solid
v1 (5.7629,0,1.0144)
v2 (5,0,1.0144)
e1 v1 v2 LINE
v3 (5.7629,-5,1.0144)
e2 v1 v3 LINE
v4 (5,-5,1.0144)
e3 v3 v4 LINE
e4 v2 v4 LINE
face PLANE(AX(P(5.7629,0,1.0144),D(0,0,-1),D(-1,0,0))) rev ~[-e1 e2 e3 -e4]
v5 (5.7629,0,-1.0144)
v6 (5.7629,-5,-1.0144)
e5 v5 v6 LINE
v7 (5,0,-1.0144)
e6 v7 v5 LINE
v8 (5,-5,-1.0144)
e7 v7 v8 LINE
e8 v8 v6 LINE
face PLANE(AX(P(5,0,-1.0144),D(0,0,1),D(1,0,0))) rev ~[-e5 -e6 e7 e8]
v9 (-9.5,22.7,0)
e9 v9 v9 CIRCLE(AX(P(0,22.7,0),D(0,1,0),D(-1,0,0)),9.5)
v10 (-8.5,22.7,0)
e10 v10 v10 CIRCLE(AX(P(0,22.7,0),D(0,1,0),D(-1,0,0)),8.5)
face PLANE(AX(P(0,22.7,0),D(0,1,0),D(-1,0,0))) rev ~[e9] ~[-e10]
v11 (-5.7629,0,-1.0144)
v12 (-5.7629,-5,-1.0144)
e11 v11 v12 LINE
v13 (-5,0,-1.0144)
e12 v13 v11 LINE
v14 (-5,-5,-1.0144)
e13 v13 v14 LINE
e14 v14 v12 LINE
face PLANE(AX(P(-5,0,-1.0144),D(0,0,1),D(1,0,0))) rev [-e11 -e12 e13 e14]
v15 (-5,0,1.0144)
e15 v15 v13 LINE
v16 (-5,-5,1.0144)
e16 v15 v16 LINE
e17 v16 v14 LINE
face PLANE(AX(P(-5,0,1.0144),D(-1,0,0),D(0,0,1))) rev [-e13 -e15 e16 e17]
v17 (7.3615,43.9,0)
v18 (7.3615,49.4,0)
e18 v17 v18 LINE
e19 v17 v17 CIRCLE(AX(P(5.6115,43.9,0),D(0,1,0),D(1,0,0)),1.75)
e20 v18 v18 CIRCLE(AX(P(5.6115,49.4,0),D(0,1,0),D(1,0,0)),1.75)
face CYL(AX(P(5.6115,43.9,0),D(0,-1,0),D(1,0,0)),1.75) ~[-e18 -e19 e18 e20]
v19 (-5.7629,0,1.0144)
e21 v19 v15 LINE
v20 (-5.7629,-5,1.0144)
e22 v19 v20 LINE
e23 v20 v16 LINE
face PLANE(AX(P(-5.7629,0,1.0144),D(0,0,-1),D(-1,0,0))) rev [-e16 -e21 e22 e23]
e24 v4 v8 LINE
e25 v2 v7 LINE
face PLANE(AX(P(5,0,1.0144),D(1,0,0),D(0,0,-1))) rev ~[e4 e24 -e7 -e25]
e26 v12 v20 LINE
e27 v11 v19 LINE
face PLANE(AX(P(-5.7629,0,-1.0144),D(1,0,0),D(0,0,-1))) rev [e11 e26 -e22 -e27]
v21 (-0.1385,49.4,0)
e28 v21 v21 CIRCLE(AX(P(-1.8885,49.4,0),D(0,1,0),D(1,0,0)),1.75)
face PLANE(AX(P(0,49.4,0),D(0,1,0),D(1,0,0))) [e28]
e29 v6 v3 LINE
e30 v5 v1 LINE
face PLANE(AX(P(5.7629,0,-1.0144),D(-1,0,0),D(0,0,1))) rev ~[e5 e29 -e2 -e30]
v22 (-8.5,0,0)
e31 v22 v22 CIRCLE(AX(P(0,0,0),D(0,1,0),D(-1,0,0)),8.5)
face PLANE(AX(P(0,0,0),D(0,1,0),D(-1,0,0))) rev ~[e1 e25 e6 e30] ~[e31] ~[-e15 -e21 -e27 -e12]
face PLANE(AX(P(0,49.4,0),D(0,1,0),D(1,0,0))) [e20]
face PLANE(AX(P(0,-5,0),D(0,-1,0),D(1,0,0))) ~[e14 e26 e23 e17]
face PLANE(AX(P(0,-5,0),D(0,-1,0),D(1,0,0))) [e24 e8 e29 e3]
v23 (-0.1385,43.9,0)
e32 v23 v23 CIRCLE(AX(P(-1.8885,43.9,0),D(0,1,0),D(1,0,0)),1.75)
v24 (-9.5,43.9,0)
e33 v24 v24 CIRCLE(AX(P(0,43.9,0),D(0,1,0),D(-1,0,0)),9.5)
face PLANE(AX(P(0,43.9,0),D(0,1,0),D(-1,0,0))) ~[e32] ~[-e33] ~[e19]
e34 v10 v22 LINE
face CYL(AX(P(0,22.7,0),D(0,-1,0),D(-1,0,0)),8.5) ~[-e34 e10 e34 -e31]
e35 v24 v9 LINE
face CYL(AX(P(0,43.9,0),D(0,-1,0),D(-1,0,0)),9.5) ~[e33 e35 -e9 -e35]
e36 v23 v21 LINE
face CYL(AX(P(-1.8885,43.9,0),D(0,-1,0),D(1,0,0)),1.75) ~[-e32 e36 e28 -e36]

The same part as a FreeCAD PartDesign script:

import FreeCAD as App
import Part
import Sketcher


def add_polygon(sketch, points):
    """Adds a closed chain of lines whose ends are joined by coincident constraints."""
    first, n = sketch.GeometryCount, len(points)
    for a, b in zip(points, points[1:] + points[:1]):
        sketch.addGeometry(Part.LineSegment(App.Vector(*a, 0), App.Vector(*b, 0)), False)
    for i in range(n):
        sketch.addConstraint(Sketcher.Constraint("Coincident", first + i, 2, first + (i + 1) % n, 1))

doc = App.newDocument("Part")
body = doc.addObject("PartDesign::Body", "Body")

sketch1 = doc.addObject("Sketcher::SketchObject", "Sketch")
body.addObject(sketch1)
sketch1.AttachmentSupport = (doc.XY_Plane, [""])
sketch1.MapMode = "FlatFace"
add_polygon(sketch1, [(-8.5, 0), (0, 0), (0, 43.9), (-9.5, 43.9), (-9.5, 22.7), (-8.5, 22.7)])
sketch1.addConstraint(Sketcher.Constraint("Horizontal", 0))
sketch1.addConstraint(Sketcher.Constraint("Vertical", 1))
sketch1.addConstraint(Sketcher.Constraint("Horizontal", 2))
sketch1.addConstraint(Sketcher.Constraint("Vertical", 3))
sketch1.addConstraint(Sketcher.Constraint("Horizontal", 4))
sketch1.addConstraint(Sketcher.Constraint("Vertical", 5))
sketch1.addConstraint(Sketcher.Constraint("Coincident", 0, 2, -1, 1))
sketch1.addConstraint(Sketcher.Constraint("DistanceY", 1, 1, 1, 2, 43.9))
sketch1.addConstraint(Sketcher.Constraint("DistanceY", 3, 2, 3, 1, 21.2))
sketch1.addConstraint(Sketcher.Constraint("DistanceX", 4, 1, 4, 2, 1.0))
sketch1.addConstraint(Sketcher.Constraint("DistanceX", 0, 1, 0, 2, 8.5))
revolution = doc.addObject("PartDesign::Revolution", "Revolution")
body.addObject(revolution)
revolution.Profile = sketch1
revolution.ReferenceAxis = (sketch1, ["V_Axis"])
revolution.Angle = 360

sketch2 = doc.addObject("Sketcher::SketchObject", "Sketch001")
body.addObject(sketch2)
sketch2.AttachmentSupport = (doc.XZ_Plane, [""])
sketch2.MapMode = "FlatFace"
add_polygon(sketch2, [(5.8, -1), (5.8, 1), (5, 1), (5, -1)])
sketch2.addConstraint(Sketcher.Constraint("Vertical", 0))
sketch2.addConstraint(Sketcher.Constraint("Horizontal", 1))
sketch2.addConstraint(Sketcher.Constraint("Vertical", 2))
sketch2.addConstraint(Sketcher.Constraint("Horizontal", 3))
sketch2.addConstraint(Sketcher.Constraint("DistanceX", -1, 1, 1, 2, 5.0))
sketch2.addConstraint(Sketcher.Constraint("DistanceX", 1, 2, 1, 1, 0.763))
sketch2.addConstraint(Sketcher.Constraint("DistanceY", 0, 1, 0, 2, 2.0288))
sketch2.addConstraint(Sketcher.Constraint("DistanceY", -1, 1, 0, 2, 1.0144))
pad1 = doc.addObject("PartDesign::Pad", "Pad")
body.addObject(pad1)
pad1.Profile = sketch2
pad1.Length = 5
doc.recompute()

mirrored = doc.addObject("PartDesign::Mirrored", "Mirrored")
body.addObject(mirrored)
mirrored.Originals = [pad1]
mirrored.MirrorPlane = (doc.YZ_Plane, [""])
body.Tip = mirrored

sketch3 = doc.addObject("Sketcher::SketchObject", "Sketch002")
body.addObject(sketch3)
sketch3.AttachmentSupport = (doc.XZ_Plane, [""])
sketch3.MapMode = "FlatFace"
sketch3.AttachmentOffset = App.Placement(App.Vector(0, 0, -43.9), App.Rotation())
sketch3.addGeometry(Part.Circle(App.Vector(-1.9, 0, 0), App.Vector(0, 0, 1), 1.8), False)
sketch3.addGeometry(Part.Circle(App.Vector(5.6, 0, 0), App.Vector(0, 0, 1), 1.8), False)
sketch3.addConstraint(Sketcher.Constraint("Equal", 0, 1))
sketch3.addConstraint(Sketcher.Constraint("PointOnObject", 0, 3, -1))
sketch3.addConstraint(Sketcher.Constraint("PointOnObject", 1, 3, -1))
sketch3.addConstraint(Sketcher.Constraint("Diameter", 0, 3.5))
sketch3.addConstraint(Sketcher.Constraint("DistanceX", 0, 3, 1, 3, 7.5))
sketch3.addConstraint(Sketcher.Constraint("DistanceX", 0, 3, -1, 1, 1.8885))
pad2 = doc.addObject("PartDesign::Pad", "Pad001")
body.addObject(pad2)
pad2.Profile = sketch3
pad2.Length = 5.5
pad2.Reversed = True

doc.recompute()
